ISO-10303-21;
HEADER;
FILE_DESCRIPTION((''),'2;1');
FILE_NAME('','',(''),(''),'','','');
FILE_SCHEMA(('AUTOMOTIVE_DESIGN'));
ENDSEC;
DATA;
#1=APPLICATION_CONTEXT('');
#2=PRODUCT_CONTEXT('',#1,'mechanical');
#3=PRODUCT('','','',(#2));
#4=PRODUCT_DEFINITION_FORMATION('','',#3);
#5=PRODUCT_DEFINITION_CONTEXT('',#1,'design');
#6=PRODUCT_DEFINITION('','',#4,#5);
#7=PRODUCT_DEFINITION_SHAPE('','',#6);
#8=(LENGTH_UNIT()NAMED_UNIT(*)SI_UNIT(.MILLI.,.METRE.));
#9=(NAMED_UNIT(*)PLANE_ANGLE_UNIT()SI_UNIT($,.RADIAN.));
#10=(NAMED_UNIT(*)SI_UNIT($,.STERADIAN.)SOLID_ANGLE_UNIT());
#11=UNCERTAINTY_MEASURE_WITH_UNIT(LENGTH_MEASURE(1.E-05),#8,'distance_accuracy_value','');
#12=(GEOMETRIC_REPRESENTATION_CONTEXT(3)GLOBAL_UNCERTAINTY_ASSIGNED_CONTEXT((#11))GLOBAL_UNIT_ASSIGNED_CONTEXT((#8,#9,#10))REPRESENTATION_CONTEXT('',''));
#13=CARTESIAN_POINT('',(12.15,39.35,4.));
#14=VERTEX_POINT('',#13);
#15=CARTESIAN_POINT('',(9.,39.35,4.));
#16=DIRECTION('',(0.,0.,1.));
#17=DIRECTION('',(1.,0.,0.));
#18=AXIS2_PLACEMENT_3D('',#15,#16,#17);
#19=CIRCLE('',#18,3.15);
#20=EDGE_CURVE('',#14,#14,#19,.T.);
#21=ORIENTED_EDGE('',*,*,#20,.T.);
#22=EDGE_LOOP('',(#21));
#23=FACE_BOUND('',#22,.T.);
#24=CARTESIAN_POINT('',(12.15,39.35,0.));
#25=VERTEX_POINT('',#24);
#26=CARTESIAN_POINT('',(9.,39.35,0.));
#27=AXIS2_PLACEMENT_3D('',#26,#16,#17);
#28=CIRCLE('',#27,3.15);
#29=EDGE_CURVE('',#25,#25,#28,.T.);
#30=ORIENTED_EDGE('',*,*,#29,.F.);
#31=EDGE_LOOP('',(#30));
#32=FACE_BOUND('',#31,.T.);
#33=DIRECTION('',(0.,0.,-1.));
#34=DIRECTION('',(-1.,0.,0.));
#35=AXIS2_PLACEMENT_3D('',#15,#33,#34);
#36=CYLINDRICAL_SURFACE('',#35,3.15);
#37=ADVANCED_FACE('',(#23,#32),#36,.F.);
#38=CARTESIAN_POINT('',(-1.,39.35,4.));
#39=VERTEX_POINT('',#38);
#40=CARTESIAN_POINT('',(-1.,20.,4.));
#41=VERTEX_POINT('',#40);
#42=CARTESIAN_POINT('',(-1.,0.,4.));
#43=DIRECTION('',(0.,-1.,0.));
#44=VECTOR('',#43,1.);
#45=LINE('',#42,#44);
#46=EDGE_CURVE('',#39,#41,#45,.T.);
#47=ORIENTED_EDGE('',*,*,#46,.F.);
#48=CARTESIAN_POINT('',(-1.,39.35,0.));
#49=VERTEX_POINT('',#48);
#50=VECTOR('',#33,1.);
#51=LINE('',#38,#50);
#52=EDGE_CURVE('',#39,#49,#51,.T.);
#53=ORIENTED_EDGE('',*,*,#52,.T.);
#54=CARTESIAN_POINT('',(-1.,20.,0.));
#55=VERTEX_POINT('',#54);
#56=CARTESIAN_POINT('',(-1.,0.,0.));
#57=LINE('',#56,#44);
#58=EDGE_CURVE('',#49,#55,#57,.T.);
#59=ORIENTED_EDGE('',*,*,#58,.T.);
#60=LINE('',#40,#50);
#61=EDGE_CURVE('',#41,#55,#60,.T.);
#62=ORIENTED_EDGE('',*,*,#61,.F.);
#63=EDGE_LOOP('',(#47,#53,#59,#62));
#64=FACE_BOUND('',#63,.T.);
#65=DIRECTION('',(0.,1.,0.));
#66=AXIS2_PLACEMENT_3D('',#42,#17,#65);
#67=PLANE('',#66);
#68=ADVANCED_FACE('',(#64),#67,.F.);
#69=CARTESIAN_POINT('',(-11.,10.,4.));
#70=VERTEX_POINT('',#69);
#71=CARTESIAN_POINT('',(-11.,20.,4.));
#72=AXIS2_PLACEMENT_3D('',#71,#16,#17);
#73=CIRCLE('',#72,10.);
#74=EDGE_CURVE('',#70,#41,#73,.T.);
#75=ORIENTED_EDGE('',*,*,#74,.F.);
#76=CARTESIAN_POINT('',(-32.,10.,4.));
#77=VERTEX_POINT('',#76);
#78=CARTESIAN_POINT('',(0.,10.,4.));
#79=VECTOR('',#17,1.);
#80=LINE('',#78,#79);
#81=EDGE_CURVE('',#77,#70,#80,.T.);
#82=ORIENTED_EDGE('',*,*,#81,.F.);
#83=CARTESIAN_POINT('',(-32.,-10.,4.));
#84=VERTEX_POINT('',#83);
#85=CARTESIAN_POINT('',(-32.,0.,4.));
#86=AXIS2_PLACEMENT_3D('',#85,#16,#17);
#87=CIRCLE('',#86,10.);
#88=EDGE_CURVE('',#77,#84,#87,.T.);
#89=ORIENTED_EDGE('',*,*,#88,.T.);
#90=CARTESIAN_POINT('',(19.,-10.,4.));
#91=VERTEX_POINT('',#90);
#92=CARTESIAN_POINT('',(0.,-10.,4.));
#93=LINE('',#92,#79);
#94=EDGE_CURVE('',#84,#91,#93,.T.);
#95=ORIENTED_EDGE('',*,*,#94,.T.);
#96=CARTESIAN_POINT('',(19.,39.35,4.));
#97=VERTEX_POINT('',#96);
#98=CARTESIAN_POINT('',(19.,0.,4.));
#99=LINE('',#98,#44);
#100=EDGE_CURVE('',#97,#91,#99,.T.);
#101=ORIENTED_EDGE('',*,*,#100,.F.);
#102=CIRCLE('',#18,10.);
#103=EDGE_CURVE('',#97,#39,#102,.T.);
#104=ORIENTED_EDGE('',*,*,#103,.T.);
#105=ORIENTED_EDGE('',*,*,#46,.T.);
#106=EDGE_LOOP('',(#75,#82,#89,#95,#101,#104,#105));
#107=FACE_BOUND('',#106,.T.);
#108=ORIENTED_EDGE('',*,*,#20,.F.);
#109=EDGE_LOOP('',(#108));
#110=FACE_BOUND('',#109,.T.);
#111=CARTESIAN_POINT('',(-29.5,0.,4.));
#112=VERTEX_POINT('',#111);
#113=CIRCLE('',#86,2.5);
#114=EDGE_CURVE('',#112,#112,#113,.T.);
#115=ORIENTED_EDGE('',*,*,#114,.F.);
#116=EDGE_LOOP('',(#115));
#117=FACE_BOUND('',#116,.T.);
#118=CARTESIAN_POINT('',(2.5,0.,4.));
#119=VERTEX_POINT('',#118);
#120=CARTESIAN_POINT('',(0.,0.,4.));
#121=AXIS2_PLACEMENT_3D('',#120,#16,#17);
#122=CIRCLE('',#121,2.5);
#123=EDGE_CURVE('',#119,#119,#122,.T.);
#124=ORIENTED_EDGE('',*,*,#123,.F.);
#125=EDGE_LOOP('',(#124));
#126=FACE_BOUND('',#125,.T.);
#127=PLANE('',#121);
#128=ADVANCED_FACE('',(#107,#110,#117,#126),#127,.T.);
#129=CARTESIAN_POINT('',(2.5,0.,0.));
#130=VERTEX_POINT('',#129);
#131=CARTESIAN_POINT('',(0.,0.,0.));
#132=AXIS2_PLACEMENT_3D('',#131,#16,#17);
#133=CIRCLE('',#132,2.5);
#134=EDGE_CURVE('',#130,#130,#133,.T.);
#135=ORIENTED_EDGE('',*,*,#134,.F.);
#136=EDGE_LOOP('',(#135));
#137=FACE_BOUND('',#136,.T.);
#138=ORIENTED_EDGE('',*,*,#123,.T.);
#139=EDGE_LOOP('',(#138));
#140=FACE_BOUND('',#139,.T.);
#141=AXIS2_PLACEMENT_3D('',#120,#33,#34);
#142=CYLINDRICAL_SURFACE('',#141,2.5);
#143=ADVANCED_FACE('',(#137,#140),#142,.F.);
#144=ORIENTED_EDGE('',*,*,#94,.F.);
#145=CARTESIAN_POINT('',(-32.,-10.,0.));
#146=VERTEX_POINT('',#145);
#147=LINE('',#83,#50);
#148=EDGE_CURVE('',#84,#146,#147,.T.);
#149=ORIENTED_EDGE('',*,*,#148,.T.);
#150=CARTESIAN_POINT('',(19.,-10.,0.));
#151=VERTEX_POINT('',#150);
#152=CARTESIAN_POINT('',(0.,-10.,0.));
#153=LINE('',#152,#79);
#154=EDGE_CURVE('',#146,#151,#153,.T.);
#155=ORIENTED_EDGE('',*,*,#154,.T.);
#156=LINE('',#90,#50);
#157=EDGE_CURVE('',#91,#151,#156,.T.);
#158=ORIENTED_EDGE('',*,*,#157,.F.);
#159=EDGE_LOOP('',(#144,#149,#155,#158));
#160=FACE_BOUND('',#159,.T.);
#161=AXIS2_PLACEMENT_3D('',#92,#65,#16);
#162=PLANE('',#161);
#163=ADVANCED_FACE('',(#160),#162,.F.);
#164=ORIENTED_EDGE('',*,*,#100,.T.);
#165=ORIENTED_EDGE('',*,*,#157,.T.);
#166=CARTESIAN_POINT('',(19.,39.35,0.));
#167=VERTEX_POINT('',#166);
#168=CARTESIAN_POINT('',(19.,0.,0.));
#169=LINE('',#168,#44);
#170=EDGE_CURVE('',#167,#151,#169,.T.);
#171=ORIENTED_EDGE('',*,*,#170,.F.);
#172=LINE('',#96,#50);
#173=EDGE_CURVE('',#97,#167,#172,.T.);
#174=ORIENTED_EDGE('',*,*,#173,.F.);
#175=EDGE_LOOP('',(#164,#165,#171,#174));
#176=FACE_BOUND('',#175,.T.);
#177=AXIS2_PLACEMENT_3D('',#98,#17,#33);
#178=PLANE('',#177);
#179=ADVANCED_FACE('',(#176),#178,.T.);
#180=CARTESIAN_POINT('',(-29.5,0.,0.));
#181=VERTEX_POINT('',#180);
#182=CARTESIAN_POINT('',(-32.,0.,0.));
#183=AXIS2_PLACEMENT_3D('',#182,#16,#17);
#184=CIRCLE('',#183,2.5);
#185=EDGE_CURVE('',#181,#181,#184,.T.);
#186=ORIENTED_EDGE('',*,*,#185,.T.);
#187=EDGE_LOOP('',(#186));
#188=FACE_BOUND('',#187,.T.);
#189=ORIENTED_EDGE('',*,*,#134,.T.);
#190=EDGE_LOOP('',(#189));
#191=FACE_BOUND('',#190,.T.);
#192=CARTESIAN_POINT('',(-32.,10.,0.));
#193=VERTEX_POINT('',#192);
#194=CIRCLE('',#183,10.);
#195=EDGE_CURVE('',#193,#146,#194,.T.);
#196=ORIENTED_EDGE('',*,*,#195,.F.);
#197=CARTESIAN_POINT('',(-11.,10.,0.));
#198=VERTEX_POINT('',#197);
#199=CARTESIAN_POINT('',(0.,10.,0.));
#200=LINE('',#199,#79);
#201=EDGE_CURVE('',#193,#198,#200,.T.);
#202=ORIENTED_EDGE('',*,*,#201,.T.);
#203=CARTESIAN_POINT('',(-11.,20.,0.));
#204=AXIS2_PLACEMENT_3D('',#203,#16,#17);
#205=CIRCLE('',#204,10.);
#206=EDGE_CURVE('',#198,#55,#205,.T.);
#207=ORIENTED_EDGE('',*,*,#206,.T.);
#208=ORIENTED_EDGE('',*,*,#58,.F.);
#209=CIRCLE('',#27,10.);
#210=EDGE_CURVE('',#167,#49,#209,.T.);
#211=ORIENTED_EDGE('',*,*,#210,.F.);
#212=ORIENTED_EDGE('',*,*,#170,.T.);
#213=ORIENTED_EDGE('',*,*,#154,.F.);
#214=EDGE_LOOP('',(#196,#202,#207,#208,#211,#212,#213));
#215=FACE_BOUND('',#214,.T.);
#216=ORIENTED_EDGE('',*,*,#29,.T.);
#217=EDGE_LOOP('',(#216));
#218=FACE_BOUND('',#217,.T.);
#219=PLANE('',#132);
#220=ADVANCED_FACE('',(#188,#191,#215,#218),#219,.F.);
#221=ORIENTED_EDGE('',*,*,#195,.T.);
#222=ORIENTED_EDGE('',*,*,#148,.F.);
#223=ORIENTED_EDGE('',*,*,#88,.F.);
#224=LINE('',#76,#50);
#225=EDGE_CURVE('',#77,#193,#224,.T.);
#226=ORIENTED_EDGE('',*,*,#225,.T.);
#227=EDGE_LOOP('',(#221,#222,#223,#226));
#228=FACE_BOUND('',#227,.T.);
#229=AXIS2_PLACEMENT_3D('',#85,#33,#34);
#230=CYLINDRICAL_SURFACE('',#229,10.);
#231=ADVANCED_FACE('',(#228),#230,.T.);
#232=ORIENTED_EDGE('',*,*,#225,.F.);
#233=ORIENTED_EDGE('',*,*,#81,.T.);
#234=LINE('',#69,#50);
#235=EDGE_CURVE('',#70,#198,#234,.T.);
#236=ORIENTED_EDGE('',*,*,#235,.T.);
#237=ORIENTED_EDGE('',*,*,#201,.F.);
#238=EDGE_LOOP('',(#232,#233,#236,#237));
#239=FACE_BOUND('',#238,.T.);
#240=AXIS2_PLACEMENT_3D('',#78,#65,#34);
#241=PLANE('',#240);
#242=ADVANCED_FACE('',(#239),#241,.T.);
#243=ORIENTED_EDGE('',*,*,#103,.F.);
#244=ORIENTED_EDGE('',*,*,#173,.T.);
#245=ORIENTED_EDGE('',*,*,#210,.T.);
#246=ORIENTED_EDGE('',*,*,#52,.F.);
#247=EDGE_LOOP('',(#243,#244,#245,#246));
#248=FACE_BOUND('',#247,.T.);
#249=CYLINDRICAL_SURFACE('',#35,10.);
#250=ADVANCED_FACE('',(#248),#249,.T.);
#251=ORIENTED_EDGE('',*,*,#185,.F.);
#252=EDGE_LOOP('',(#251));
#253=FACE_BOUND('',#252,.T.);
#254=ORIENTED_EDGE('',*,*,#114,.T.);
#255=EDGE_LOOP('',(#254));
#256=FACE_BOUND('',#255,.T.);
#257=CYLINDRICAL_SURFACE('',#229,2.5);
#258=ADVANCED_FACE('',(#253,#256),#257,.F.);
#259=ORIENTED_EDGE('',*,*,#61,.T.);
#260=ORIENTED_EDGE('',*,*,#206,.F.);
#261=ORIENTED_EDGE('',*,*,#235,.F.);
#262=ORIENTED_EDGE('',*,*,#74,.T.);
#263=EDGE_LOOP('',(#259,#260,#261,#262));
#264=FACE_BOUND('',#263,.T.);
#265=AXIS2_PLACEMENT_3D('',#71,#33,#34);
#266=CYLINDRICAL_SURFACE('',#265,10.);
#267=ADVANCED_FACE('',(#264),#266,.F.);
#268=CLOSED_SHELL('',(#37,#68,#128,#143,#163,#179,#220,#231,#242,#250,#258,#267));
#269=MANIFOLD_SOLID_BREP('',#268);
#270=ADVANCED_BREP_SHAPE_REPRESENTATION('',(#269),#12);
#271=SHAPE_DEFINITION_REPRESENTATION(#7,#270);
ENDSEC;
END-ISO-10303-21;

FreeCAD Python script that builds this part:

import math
import FreeCAD as App
import Part
import Sketcher

doc = App.newDocument("Part")
params = doc.addObject("Spreadsheet::Sheet", "Params")
for row, (alias, value) in enumerate([
    ("sketch1_diameter", "5 mm"),
    ("sketch1_radius", "10 mm"),
    ("sketch1_diameter2", "6.3 mm"),
    ("sketch1_width", "21 mm"),
    ("sketch1_height", "49.35 mm"),
    ("pad1_length", "4 mm"),
], start=1):
    params.set(f"A{row}", alias)
    params.set(f"B{row}", "=" + value)
    params.setAlias(f"B{row}", alias)

body = doc.addObject("PartDesign::Body", "Body")

sketch1 = body.newObject("Sketcher::SketchObject", "Sketch")
sketch1.AttachmentSupport = (doc.getObject("XY_Plane"), [""])
sketch1.MapMode = "FlatFace"
sketch1.addGeometry(Part.ArcOfCircle(Part.Circle(App.Vector(-11, 20, 0), App.Vector(0, 0, 1), 10), math.radians(-90), math.radians(0)), False)
sketch1.addGeometry(Part.LineSegment(App.Vector(-11, 10, 0), App.Vector(-32, 10, 0)), False)
sketch1.addGeometry(Part.ArcOfCircle(Part.Circle(App.Vector(-32, 0, 0), App.Vector(0, 0, 1), 10), math.radians(90), math.radians(270)), False)
sketch1.addGeometry(Part.LineSegment(App.Vector(-32, -10, 0), App.Vector(19, -10, 0)), False)
sketch1.addGeometry(Part.LineSegment(App.Vector(19, -10, 0), App.Vector(19, 39.4, 0)), False)
sketch1.addGeometry(Part.ArcOfCircle(Part.Circle(App.Vector(9, 39.4, 0), App.Vector(0, 0, 1), 10), math.radians(0), math.radians(180)), False)
sketch1.addGeometry(Part.LineSegment(App.Vector(-1, 39.4, 0), App.Vector(-1, 20, 0)), False)
sketch1.addGeometry(Part.Circle(App.Vector(0, 0, 0), App.Vector(0, 0, 1), 2.5), False)
sketch1.addGeometry(Part.Circle(App.Vector(-32, 0, 0), App.Vector(0, 0, 1), 2.5), False)
sketch1.addGeometry(Part.Circle(App.Vector(9, 39.4, 0), App.Vector(0, 0, 1), 3.1), False)
sketch1.addConstraint(Sketcher.Constraint("Tangent", 0, 1, 1, 1))
sketch1.addConstraint(Sketcher.Constraint("Tangent", 1, 2, 2, 1))
sketch1.addConstraint(Sketcher.Constraint("Tangent", 2, 2, 3, 1))
sketch1.addConstraint(Sketcher.Constraint("Coincident", 3, 2, 4, 1))
sketch1.addConstraint(Sketcher.Constraint("Tangent", 4, 2, 5, 1))
sketch1.addConstraint(Sketcher.Constraint("Tangent", 5, 2, 6, 1))
sketch1.addConstraint(Sketcher.Constraint("Tangent", 6, 2, 0, 2))
sketch1.addConstraint(Sketcher.Constraint("Horizontal", 1))
sketch1.addConstraint(Sketcher.Constraint("Horizontal", 3))
sketch1.addConstraint(Sketcher.Constraint("Vertical", 4))
sketch1.addConstraint(Sketcher.Constraint("Vertical", 6))
sketch1.addConstraint(Sketcher.Constraint("Coincident", 7, 3, -1, 1))
sketch1.addConstraint(Sketcher.Constraint("Coincident", 8, 3, 2, 3))
sketch1.addConstraint(Sketcher.Constraint("Coincident", 9, 3, 5, 3))
sketch1.addConstraint(Sketcher.Constraint("Equal", 0, 2))
sketch1.addConstraint(Sketcher.Constraint("Equal", 2, 5))
sketch1.addConstraint(Sketcher.Constraint("Equal", 7, 8))
sketch1.addConstraint(Sketcher.Constraint("PointOnObject", 2, 3, -1))
sketch1.addConstraint(Sketcher.Constraint("Diameter", 7, 5.0))
sketch1.addConstraint(Sketcher.Constraint("Radius", 0, 10.0))
sketch1.addConstraint(Sketcher.Constraint("Diameter", 9, 6.3))
sketch1.addConstraint(Sketcher.Constraint("DistanceX", 1, 2, 1, 1, 21.0))
sketch1.addConstraint(Sketcher.Constraint("DistanceX", 0, 3, -1, 1, 11.0))
sketch1.addConstraint(Sketcher.Constraint("DistanceY", 4, 1, 4, 2, 49.35))
sketch1.setExpression("Constraints[18]", "Params.sketch1_diameter")
sketch1.setExpression("Constraints[19]", "Params.sketch1_radius")
sketch1.setExpression("Constraints[20]", "Params.sketch1_diameter2")
sketch1.setExpression("Constraints[21]", "Params.sketch1_width")
sketch1.setExpression("Constraints[23]", "Params.sketch1_height")
pad1 = body.newObject("PartDesign::Pad", "Pad")
pad1.Profile = sketch1
pad1.setExpression("Length", "Params.pad1_length")

doc.recompute()
